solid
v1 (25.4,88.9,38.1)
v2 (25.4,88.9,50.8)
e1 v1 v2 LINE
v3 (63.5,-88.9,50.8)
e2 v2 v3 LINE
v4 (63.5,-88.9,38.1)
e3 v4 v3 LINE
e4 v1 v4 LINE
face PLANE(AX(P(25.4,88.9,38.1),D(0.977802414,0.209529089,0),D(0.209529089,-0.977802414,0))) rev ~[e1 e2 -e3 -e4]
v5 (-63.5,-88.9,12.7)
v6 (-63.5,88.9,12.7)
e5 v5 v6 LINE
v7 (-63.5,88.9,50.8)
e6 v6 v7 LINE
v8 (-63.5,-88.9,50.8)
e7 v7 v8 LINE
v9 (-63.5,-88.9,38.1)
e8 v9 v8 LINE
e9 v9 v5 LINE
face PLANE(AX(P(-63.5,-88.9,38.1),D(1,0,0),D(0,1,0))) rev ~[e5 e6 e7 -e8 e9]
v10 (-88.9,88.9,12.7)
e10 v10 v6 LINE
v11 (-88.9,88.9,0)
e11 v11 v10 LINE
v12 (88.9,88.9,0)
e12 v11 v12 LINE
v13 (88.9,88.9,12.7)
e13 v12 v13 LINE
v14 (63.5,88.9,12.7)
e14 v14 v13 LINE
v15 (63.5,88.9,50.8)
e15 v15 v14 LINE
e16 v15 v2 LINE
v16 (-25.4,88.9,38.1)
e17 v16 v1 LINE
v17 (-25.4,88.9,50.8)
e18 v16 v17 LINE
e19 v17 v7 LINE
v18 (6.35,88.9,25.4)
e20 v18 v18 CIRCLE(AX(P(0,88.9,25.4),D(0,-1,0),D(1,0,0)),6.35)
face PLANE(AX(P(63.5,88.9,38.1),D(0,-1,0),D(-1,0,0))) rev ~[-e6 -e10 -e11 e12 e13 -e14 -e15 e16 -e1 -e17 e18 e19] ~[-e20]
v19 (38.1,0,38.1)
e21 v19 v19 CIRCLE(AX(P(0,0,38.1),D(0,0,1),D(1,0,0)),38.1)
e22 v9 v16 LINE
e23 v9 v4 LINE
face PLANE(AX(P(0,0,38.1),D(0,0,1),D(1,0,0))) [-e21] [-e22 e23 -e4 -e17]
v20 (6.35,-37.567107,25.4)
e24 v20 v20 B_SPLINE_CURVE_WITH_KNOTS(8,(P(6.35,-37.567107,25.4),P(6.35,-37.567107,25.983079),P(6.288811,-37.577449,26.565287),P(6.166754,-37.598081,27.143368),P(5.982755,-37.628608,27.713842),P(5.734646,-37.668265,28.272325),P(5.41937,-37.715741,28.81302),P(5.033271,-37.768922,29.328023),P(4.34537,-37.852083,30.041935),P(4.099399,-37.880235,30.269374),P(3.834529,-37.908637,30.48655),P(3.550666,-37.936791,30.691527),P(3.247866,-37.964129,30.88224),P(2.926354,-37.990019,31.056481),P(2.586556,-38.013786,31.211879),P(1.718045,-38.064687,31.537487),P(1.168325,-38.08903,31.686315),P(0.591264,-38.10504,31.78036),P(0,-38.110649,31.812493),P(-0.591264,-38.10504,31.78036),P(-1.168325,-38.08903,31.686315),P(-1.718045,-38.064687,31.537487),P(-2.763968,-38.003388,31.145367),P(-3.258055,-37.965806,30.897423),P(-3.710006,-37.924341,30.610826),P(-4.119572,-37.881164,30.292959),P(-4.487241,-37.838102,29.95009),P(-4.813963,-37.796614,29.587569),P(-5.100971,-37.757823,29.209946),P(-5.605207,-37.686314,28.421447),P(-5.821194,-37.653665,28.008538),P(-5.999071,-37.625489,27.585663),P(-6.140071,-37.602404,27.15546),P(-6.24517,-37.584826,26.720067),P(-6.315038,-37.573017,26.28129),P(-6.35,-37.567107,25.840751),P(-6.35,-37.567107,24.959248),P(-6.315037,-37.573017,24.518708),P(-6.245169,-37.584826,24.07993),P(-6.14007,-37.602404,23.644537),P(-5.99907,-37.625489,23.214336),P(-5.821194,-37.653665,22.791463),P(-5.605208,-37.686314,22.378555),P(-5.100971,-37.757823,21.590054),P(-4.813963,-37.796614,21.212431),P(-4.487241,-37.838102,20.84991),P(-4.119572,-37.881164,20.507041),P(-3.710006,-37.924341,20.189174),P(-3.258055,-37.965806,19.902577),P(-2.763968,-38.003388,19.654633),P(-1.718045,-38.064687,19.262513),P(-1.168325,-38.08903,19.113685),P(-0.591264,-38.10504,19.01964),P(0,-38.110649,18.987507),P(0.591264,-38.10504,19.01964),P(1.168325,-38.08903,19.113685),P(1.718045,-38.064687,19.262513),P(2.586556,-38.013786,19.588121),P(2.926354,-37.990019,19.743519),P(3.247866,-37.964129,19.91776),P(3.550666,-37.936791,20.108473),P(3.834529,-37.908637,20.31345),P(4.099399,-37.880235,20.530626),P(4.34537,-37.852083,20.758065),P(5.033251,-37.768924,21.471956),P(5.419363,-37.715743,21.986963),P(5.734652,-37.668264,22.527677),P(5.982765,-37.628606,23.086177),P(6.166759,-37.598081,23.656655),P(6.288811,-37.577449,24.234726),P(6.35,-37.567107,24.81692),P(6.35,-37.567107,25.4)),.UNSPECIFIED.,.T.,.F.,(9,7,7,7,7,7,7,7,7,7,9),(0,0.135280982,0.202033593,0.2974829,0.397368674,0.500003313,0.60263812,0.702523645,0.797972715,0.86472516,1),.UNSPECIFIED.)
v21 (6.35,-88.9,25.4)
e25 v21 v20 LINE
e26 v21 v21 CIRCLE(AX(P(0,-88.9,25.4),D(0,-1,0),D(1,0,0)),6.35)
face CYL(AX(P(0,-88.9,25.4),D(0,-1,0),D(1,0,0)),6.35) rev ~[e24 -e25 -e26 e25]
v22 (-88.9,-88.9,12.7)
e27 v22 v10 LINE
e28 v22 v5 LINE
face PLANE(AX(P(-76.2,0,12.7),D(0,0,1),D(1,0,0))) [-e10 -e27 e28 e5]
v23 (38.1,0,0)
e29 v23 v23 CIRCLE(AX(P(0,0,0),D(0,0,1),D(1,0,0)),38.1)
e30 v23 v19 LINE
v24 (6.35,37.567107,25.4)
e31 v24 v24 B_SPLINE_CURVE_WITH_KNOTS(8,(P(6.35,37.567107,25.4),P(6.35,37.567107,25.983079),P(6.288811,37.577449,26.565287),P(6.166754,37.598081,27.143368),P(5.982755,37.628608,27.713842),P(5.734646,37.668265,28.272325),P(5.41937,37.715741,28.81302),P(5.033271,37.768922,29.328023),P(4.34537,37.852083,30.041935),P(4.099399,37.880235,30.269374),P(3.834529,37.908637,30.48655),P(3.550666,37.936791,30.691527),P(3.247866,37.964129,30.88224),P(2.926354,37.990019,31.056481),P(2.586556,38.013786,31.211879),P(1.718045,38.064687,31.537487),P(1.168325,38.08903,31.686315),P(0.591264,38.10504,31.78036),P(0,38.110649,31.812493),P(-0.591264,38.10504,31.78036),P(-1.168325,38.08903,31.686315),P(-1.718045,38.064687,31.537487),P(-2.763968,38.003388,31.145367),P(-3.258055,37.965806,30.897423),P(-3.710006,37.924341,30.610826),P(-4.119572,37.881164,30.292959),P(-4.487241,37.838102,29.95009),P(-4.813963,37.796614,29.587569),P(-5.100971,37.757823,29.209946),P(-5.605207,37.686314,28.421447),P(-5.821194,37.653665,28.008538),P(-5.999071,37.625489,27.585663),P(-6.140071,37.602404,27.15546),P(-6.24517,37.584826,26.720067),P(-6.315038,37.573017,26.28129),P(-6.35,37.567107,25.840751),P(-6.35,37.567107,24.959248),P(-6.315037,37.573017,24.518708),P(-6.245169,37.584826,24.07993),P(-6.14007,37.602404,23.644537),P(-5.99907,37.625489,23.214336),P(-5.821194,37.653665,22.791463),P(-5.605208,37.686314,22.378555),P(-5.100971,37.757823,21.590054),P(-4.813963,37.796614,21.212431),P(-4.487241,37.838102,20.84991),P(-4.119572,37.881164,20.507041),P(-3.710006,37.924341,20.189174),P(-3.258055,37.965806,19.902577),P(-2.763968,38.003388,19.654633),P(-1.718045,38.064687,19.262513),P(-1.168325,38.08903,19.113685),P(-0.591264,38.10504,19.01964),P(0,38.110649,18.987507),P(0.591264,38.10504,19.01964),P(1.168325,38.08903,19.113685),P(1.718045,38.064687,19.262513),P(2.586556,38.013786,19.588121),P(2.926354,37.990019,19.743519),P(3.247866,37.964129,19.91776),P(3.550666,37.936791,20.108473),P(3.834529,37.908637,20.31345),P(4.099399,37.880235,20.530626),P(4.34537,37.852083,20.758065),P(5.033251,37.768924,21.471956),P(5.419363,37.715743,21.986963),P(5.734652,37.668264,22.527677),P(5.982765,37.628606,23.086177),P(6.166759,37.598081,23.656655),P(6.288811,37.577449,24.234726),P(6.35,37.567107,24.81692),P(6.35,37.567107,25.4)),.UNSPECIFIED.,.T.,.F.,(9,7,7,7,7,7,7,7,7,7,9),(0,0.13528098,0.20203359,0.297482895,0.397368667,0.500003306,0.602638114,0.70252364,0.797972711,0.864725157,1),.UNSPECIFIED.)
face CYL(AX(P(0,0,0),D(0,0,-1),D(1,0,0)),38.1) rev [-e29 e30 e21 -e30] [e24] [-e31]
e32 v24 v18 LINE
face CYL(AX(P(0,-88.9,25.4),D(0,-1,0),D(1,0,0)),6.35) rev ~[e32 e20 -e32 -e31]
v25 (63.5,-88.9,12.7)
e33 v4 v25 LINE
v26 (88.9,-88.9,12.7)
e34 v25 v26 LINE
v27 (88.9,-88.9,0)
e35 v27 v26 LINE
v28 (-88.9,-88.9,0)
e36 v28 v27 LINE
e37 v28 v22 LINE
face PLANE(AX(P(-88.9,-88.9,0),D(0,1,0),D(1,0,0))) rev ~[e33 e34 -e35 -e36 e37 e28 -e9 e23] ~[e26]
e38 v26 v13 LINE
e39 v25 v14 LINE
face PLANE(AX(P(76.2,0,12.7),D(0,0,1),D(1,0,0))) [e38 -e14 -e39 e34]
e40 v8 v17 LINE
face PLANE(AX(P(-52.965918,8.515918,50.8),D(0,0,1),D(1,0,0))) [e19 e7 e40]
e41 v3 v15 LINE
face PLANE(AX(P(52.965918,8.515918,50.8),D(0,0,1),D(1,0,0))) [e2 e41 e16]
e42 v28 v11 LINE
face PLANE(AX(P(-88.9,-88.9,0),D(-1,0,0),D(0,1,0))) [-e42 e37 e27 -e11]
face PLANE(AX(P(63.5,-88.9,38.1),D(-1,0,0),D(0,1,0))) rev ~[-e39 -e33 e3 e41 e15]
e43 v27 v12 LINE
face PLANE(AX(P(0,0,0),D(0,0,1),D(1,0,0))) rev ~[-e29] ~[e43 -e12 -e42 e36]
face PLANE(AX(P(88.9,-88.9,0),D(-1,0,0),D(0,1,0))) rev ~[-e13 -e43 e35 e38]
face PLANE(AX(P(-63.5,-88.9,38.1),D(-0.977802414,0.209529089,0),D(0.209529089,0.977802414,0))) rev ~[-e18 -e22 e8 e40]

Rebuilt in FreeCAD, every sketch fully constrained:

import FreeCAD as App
import Part
import Sketcher
Q = App.Units.Quantity

doc = App.newDocument("Part")
body = doc.addObject("PartDesign::Body", "Body")

sketch1 = body.newObject("Sketcher::SketchObject", "Sketch")
sketch1.AttachmentSupport = (doc.getObject("XY_Plane"), [""])
sketch1.MapMode = "FlatFace"
sketch1.addGeometry(Part.LineSegment(App.Vector(-88.9, 88.9, 0), App.Vector(-88.9, -88.9, 0)), False)
sketch1.addGeometry(Part.LineSegment(App.Vector(-88.9, -88.9, 0), App.Vector(88.9, -88.9, 0)), False)
sketch1.addGeometry(Part.LineSegment(App.Vector(88.9, -88.9, 0), App.Vector(88.9, 88.9, 0)), False)
sketch1.addGeometry(Part.LineSegment(App.Vector(88.9, 88.9, 0), App.Vector(-88.9, 88.9, 0)), False)
sketch1.addGeometry(Part.Circle(App.Vector(0, 0, 0), App.Vector(0, 0, 1), 38.1), False)
sketch1.addConstraint(Sketcher.Constraint("Coincident", 0, 2, 1, 1))
sketch1.addConstraint(Sketcher.Constraint("Coincident", 1, 2, 2, 1))
sketch1.addConstraint(Sketcher.Constraint("Coincident", 2, 2, 3, 1))
sketch1.addConstraint(Sketcher.Constraint("Coincident", 3, 2, 0, 1))
sketch1.addConstraint(Sketcher.Constraint("Vertical", 0))
sketch1.addConstraint(Sketcher.Constraint("Horizontal", 1))
sketch1.addConstraint(Sketcher.Constraint("Vertical", 2))
sketch1.addConstraint(Sketcher.Constraint("Horizontal", 3))
sketch1.addConstraint(Sketcher.Constraint("Coincident", 4, 3, -1, 1))
sketch1.addConstraint(Sketcher.Constraint("Symmetric", 0, 2, 2, 2, -1, 1))
sketch1.addConstraint(Sketcher.Constraint("Equal", 3, 0))
sketch1.addConstraint(Sketcher.Constraint("Diameter", 4, Q("3 in")))
sketch1.addConstraint(Sketcher.Constraint("DistanceX", 1, 1, 1, 2, Q("7 in")))
pad1 = body.newObject("PartDesign::Pad", "Pad")
pad1.Profile = sketch1
pad1.Length = Q("1.5 in")

sketch2 = body.newObject("Sketcher::SketchObject", "Sketch001")
sketch2.AttachmentSupport = (doc.getObject("XY_Plane"), [""])
sketch2.MapMode = "FlatFace"
sketch2.AttachmentOffset = App.Placement(App.Vector(0, 0, 1.5 * 25.4), App.Rotation())
sketch2.addGeometry(Part.LineSegment(App.Vector(-88.9, 88.9, 0), App.Vector(-88.9, -88.9, 0)), False)
sketch2.addGeometry(Part.LineSegment(App.Vector(-88.9, -88.9, 0), App.Vector(-63.5, -88.9, 0)), False)
sketch2.addGeometry(Part.LineSegment(App.Vector(-63.5, -88.9, 0), App.Vector(-63.5, 88.9, 0)), False)
sketch2.addGeometry(Part.LineSegment(App.Vector(-63.5, 88.9, 0), App.Vector(-88.9, 88.9, 0)), False)
sketch2.addGeometry(Part.LineSegment(App.Vector(63.5, 88.9, 0), App.Vector(63.5, -88.9, 0)), False)
sketch2.addGeometry(Part.LineSegment(App.Vector(63.5, -88.9, 0), App.Vector(88.9, -88.9, 0)), False)
sketch2.addGeometry(Part.LineSegment(App.Vector(88.9, -88.9, 0), App.Vector(88.9, 88.9, 0)), False)
sketch2.addGeometry(Part.LineSegment(App.Vector(88.9, 88.9, 0), App.Vector(63.5, 88.9, 0)), False)
sketch2.addConstraint(Sketcher.Constraint("Coincident", 0, 2, 1, 1))
sketch2.addConstraint(Sketcher.Constraint("Coincident", 1, 2, 2, 1))
sketch2.addConstraint(Sketcher.Constraint("Coincident", 2, 2, 3, 1))
sketch2.addConstraint(Sketcher.Constraint("Coincident", 3, 2, 0, 1))
sketch2.addConstraint(Sketcher.Constraint("Coincident", 4, 2, 5, 1))
sketch2.addConstraint(Sketcher.Constraint("Coincident", 5, 2, 6, 1))
sketch2.addConstraint(Sketcher.Constraint("Coincident", 6, 2, 7, 1))
sketch2.addConstraint(Sketcher.Constraint("Coincident", 7, 2, 4, 1))
sketch2.addConstraint(Sketcher.Constraint("Vertical", 0))
sketch2.addConstraint(Sketcher.Constraint("Horizontal", 1))
sketch2.addConstraint(Sketcher.Constraint("Vertical", 2))
sketch2.addConstraint(Sketcher.Constraint("Horizontal", 3))
sketch2.addConstraint(Sketcher.Constraint("Vertical", 4))
sketch2.addConstraint(Sketcher.Constraint("Horizontal", 5))
sketch2.addConstraint(Sketcher.Constraint("Vertical", 6))
sketch2.addConstraint(Sketcher.Constraint("Horizontal", 7))
sketch2.addConstraint(Sketcher.Constraint("Symmetric", 2, 2, 4, 2, -1, 1))
sketch2.addConstraint(Sketcher.Constraint("Symmetric", 0, 2, 6, 2, -1, 1))
sketch2.addConstraint(Sketcher.Constraint("Horizontal", 1, 2, 4, 2))
sketch2.addConstraint(Sketcher.Constraint("DistanceX", 1, 1, 1, 2, Q("1 in")))
sketch2.addConstraint(Sketcher.Constraint("DistanceY", 0, 2, 0, 1, Q("7 in")))
sketch2.addConstraint(Sketcher.Constraint("DistanceX", 1, 2, 4, 2, Q("5 in")))
pocket1 = body.newObject("PartDesign::Pocket", "Pocket")
pocket1.Profile = sketch2
pocket1.Length = Q("1 in")

sketch3 = body.newObject("Sketcher::SketchObject", "Sketch002")
sketch3.AttachmentSupport = (doc.getObject("XZ_Plane"), [""])
sketch3.MapMode = "FlatFace"
sketch3.AttachmentOffset = App.Placement(App.Vector(0, 0, 3.5 * 25.4), App.Rotation())
sketch3.addGeometry(Part.Circle(App.Vector(0, 25.4, 0), App.Vector(0, 0, 1), 6.35), False)
sketch3.addConstraint(Sketcher.Constraint("PointOnObject", 0, 3, -2))
sketch3.addConstraint(Sketcher.Constraint("Diameter", 0, Q("0.5 in")))
sketch3.addConstraint(Sketcher.Constraint("DistanceY", -1, 1, 0, 3, Q("1 in")))
pocket2 = body.newObject("PartDesign::Pocket", "Pocket001")
pocket2.Profile = sketch3
pocket2.Type = "ThroughAll"

sketch4 = body.newObject("Sketcher::SketchObject", "Sketch003")
sketch4.AttachmentSupport = (doc.getObject("XY_Plane"), [""])
sketch4.MapMode = "FlatFace"
sketch4.AttachmentOffset = App.Placement(App.Vector(0, 0, 1.5 * 25.4), App.Rotation())
sketch4.addGeometry(Part.LineSegment(App.Vector(63.5, 88.9, 0), App.Vector(25.4, 88.9, 0)), False)
sketch4.addGeometry(Part.LineSegment(App.Vector(25.4, 88.9, 0), App.Vector(63.5, -88.9, 0)), False)
sketch4.addGeometry(Part.LineSegment(App.Vector(63.5, -88.9, 0), App.Vector(63.5, 88.9, 0)), False)
sketch4.addGeometry(Part.LineSegment(App.Vector(-63.5, -88.9, 0), App.Vector(-25.4, 88.9, 0)), False)
sketch4.addGeometry(Part.LineSegment(App.Vector(-25.4, 88.9, 0), App.Vector(-63.5, 88.9, 0)), False)
sketch4.addGeometry(Part.LineSegment(App.Vector(-63.5, 88.9, 0), App.Vector(-63.5, -88.9, 0)), False)
sketch4.addConstraint(Sketcher.Constraint("Coincident", 0, 2, 1, 1))
sketch4.addConstraint(Sketcher.Constraint("Coincident", 1, 2, 2, 1))
sketch4.addConstraint(Sketcher.Constraint("Coincident", 2, 2, 0, 1))
sketch4.addConstraint(Sketcher.Constraint("Coincident", 3, 2, 4, 1))
sketch4.addConstraint(Sketcher.Constraint("Coincident", 4, 2, 5, 1))
sketch4.addConstraint(Sketcher.Constraint("Coincident", 5, 2, 3, 1))
sketch4.addConstraint(Sketcher.Constraint("Horizontal", 0))
sketch4.addConstraint(Sketcher.Constraint("Vertical", 2))
sketch4.addConstraint(Sketcher.Constraint("Horizontal", 4))
sketch4.addConstraint(Sketcher.Constraint("Vertical", 5))
sketch4.addConstraint(Sketcher.Constraint("Symmetric", 1, 2, 4, 2, -1, 1))
sketch4.addConstraint(Sketcher.Constraint("Symmetric", 0, 2, 3, 2, -2))
sketch4.addConstraint(Sketcher.Constraint("Horizontal", 1, 2, 5, 2))
sketch4.addConstraint(Sketcher.Constraint("DistanceY", 2, 1, 2, 2, Q("7 in")))
sketch4.addConstraint(Sketcher.Constraint("DistanceX", 0, 2, 0, 1, Q("1.5 in")))
sketch4.addConstraint(Sketcher.Constraint("DistanceX", -1, 1, 0, 2, Q("1 in")))
pad2 = body.newObject("PartDesign::Pad", "Pad001")
pad2.Profile = sketch4
pad2.Length = Q("0.5 in")

doc.recompute()
